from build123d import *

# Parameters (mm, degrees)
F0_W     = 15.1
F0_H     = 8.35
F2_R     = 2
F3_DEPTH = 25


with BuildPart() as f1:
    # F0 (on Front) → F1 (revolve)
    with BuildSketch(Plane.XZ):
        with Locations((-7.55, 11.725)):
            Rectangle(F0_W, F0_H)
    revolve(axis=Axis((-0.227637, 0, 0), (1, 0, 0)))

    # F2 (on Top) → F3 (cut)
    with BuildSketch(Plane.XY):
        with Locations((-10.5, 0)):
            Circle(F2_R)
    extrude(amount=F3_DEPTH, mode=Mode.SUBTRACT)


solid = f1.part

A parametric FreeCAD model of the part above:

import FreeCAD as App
import Part
import Sketcher


def add_polygon(sketch, points):
    """Adds a closed chain of lines whose ends are joined by coincident constraints."""
    first, n = sketch.GeometryCount, len(points)
    for a, b in zip(points, points[1:] + points[:1]):
        sketch.addGeometry(Part.LineSegment(App.Vector(*a, 0), App.Vector(*b, 0)), False)
    for i in range(n):
        sketch.addConstraint(Sketcher.Constraint("Coincident", first + i, 2, first + (i + 1) % n, 1))

doc = App.newDocument("Part")
body = doc.addObject("PartDesign::Body", "Body")

sketch1 = body.newObject("Sketcher::SketchObject", "Sketch")
sketch1.AttachmentSupport = (doc.getObject("XZ_Plane"), [""])
sketch1.MapMode = "FlatFace"
add_polygon(sketch1, [(-15, 16), (-15, 8), (0, 8), (0, 16)])
sketch1.addConstraint([
    Sketcher.Constraint("Vertical", 0),
    Sketcher.Constraint("Horizontal", 1),
    Sketcher.Constraint("Vertical", 2),
    Sketcher.Constraint("Horizontal", 3),
    Sketcher.Constraint("PointOnObject", 1, 2, -2),
    Sketcher.Constraint("DistanceX", 1, 1, 1, 2, 15.1),
    Sketcher.Constraint("DistanceY", 0, 2, 0, 1, 8.35),
    Sketcher.Constraint("DistanceY", -1, 1, 2, 2, 15.9),
])
revolution = body.newObject("PartDesign::Revolution", "Revolution")
revolution.Profile = sketch1
revolution.ReferenceAxis = (sketch1, ["H_Axis"])
revolution.Angle = 360

sketch2 = body.newObject("Sketcher::SketchObject", "Sketch001")
sketch2.AttachmentSupport = (doc.getObject("XY_Plane"), [""])
sketch2.MapMode = "FlatFace"
sketch2.addGeometry(Part.Circle(App.Vector(-10.5, 0, 0), App.Vector(0, 0, 1), 2), False)
sketch2.addConstraint([
    Sketcher.Constraint("PointOnObject", 0, 3, -1),
    Sketcher.Constraint("Diameter", 0, 4.0),
    Sketcher.Constraint("DistanceX", 0, 3, -1, 1, 10.5),
])
pocket1 = body.newObject("PartDesign::Pocket", "Pocket")
pocket1.Profile = sketch2
pocket1.Length = 25
pocket1.Reversed = True

doc.recompute()
